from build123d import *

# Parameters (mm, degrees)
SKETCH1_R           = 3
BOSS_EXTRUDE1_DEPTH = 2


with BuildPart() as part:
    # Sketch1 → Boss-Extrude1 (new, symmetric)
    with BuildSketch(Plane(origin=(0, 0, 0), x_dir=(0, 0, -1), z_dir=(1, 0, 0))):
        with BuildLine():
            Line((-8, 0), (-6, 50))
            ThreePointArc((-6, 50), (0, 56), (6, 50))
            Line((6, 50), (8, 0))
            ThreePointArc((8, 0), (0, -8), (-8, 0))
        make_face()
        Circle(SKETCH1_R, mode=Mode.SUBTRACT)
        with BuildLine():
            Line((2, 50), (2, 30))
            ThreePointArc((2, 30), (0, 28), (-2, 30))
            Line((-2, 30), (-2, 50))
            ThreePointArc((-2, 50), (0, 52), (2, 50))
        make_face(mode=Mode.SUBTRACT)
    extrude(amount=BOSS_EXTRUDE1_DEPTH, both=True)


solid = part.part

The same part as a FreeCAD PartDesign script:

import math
import FreeCAD as App
import Part
import Sketcher

V = App.Vector
Q = App.Units.Quantity

doc = App.newDocument("Part")
body = doc.addObject("PartDesign::Body", "Body")

sketch1 = doc.addObject("Sketcher::SketchObject", "Sketch")
body.addObject(sketch1)
sketch1.AttachmentSupport = (doc.YZ_Plane, [""])
sketch1.MapMode = "FlatFace"
sketch1.addGeometry(Part.LineSegment(V(50, 6, 0), V(0, 8, 0)), False)
sketch1.addGeometry(Part.ArcOfCircle(Part.Circle(V(0, 0, 0), V(0, 0, 1), 8), math.radians(90), math.radians(270)), False)
sketch1.addGeometry(Part.LineSegment(V(0, -8, 0), V(50, -6, 0)), False)
sketch1.addGeometry(Part.ArcOfCircle(Part.Circle(V(50, 0, 0), V(0, 0, 1), 6), math.radians(-90), math.radians(90)), False)
sketch1.addGeometry(Part.Circle(V(0, 0, 0), V(0, 0, 1), 3), False)
sketch1.addGeometry(Part.LineSegment(V(50, -2, 0), V(30, -2, 0)), False)
sketch1.addGeometry(Part.ArcOfCircle(Part.Circle(V(30, 0, 0), V(0, 0, 1), 2), math.radians(90), math.radians(270)), False)
sketch1.addGeometry(Part.LineSegment(V(30, 2, 0), V(50, 2, 0)), False)
sketch1.addGeometry(Part.ArcOfCircle(Part.Circle(V(50, 0, 0), V(0, 0, 1), 2), math.radians(-90), math.radians(90)), False)
sketch1.addConstraint(Sketcher.Constraint("Coincident", 0, 2, 1, 1))
sketch1.addConstraint(Sketcher.Constraint("Coincident", 1, 2, 2, 1))
sketch1.addConstraint(Sketcher.Constraint("Coincident", 2, 2, 3, 1))
sketch1.addConstraint(Sketcher.Constraint("Coincident", 3, 2, 0, 1))
sketch1.addConstraint(Sketcher.Constraint("Tangent", 5, 2, 6, 2))
sketch1.addConstraint(Sketcher.Constraint("Tangent", 6, 1, 7, 1))
sketch1.addConstraint(Sketcher.Constraint("Tangent", 7, 2, 8, 2))
sketch1.addConstraint(Sketcher.Constraint("Tangent", 8, 1, 5, 1))
sketch1.addConstraint(Sketcher.Constraint("Horizontal", 5))
sketch1.addConstraint(Sketcher.Constraint("Horizontal", 7))
sketch1.addConstraint(Sketcher.Constraint("Coincident", 1, 3, -1, 1))
sketch1.addConstraint(Sketcher.Constraint("Coincident", 4, 3, -1, 1))
sketch1.addConstraint(Sketcher.Constraint("Coincident", 8, 3, 3, 3))
sketch1.addConstraint(Sketcher.Constraint("Symmetric", 2, 2, 3, 2, -1))
sketch1.addConstraint(Sketcher.Constraint("PointOnObject", 0, 2, -2))
sketch1.addConstraint(Sketcher.Constraint("PointOnObject", 1, 2, -2))
sketch1.addConstraint(Sketcher.Constraint("Vertical", 8, 3, 2, 2))
sketch1.addConstraint(Sketcher.Constraint("Diameter", 4, Q("6 mm")))
sketch1.addConstraint(Sketcher.Constraint("Radius", 1, Q("8 mm")))
sketch1.addConstraint(Sketcher.Constraint("Radius", 3, Q("6 mm")))
sketch1.addConstraint(Sketcher.Constraint("Radius", 6, Q("2 mm")))
sketch1.addConstraint(Sketcher.Constraint("DistanceX", 5, 2, 5, 1, Q("20 mm")))
sketch1.addConstraint(Sketcher.Constraint("DistanceX", -1, 1, 3, 3, Q("50 mm")))
pad1 = doc.addObject("PartDesign::Pad", "Pad")
body.addObject(pad1)
pad1.Profile = sketch1
pad1.Length = 4
pad1.Midplane = True

doc.recompute()
